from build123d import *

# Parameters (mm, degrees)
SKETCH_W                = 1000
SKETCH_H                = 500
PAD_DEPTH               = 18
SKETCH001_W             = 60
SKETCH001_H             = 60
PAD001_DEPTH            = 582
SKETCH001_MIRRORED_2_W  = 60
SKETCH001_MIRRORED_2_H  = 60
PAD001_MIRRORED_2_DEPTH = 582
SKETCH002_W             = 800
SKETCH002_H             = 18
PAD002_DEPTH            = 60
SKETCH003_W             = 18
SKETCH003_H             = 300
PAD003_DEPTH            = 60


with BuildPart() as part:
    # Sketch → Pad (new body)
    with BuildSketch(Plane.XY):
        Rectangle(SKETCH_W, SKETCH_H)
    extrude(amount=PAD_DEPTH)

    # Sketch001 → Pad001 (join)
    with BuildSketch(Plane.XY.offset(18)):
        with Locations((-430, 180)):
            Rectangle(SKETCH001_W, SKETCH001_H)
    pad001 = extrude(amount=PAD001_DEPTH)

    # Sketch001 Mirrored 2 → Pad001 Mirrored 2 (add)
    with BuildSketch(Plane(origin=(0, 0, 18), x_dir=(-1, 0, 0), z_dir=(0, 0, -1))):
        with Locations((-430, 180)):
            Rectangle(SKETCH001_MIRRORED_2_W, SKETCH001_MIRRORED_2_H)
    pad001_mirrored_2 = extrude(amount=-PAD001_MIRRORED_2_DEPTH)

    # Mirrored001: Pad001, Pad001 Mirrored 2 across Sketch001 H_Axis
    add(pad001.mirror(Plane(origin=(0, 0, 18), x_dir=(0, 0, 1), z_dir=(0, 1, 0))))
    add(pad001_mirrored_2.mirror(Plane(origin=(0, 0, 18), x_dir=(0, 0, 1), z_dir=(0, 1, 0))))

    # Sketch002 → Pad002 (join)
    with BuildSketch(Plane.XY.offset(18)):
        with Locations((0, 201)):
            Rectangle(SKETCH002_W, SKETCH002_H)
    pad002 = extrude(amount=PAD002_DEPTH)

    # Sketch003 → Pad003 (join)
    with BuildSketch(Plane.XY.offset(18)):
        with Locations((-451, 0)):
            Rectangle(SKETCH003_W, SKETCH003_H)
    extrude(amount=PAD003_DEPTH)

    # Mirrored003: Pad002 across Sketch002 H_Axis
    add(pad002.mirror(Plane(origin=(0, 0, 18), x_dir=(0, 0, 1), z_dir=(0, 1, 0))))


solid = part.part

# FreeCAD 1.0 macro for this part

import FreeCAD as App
import Part
import Sketcher

V = App.Vector

doc = App.newDocument("Part")
body = doc.addObject("PartDesign::Body", "Body")

# Sketch on XY plane
sketch1 = doc.addObject("Sketcher::SketchObject", "Sketch")
body.addObject(sketch1)
sketch1.AttachmentSupport = (doc.XY_Plane, [""])
sketch1.MapMode = "FlatFace"
sketch1.addGeometry([
    Part.LineSegment(V(-500, 250, 0), V(-500, -250, 0)),
    Part.LineSegment(V(-500, -250, 0), V(500, -250, 0)),
    Part.LineSegment(V(500, -250, 0), V(500, 250, 0)),
    Part.LineSegment(V(500, 250, 0), V(-500, 250, 0)),
], False)
sketch1.addConstraint([
    Sketcher.Constraint("Coincident", 0, 2, 1, 1),
    Sketcher.Constraint("Coincident", 1, 2, 2, 1),
    Sketcher.Constraint("Coincident", 2, 2, 3, 1),
    Sketcher.Constraint("Coincident", 3, 2, 0, 1),
    Sketcher.Constraint("Vertical", 0),
    Sketcher.Constraint("Horizontal", 1),
    Sketcher.Constraint("Vertical", 2),
    Sketcher.Constraint("Horizontal", 3),
    Sketcher.Constraint("Symmetric", 0, 2, 2, 2, -1, 1),
    Sketcher.Constraint("DistanceX", 1, 1, 1, 2, 1000.0),
    Sketcher.Constraint("DistanceY", 0, 2, 0, 1, 500.0),
])
pad1 = doc.addObject("PartDesign::Pad", "Pad")
body.addObject(pad1)
pad1.Profile = sketch1
pad1.Length = 18

# Sketch on XY plane
sketch2 = doc.addObject("Sketcher::SketchObject", "Sketch001")
body.addObject(sketch2)
sketch2.AttachmentSupport = (doc.XY_Plane, [""])
sketch2.MapMode = "FlatFace"
sketch2.AttachmentOffset = App.Placement(V(0, 0, 18), App.Rotation())
sketch2.addGeometry([
    Part.LineSegment(V(-460, 210, 0), V(-460, 150, 0)),
    Part.LineSegment(V(-460, 150, 0), V(-400, 150, 0)),
    Part.LineSegment(V(-400, 150, 0), V(-400, 210, 0)),
    Part.LineSegment(V(-400, 210, 0), V(-460, 210, 0)),
], False)
sketch2.addConstraint([
    Sketcher.Constraint("Coincident", 0, 2, 1, 1),
    Sketcher.Constraint("Coincident", 1, 2, 2, 1),
    Sketcher.Constraint("Coincident", 2, 2, 3, 1),
    Sketcher.Constraint("Coincident", 3, 2, 0, 1),
    Sketcher.Constraint("Vertical", 0),
    Sketcher.Constraint("Horizontal", 1),
    Sketcher.Constraint("Vertical", 2),
    Sketcher.Constraint("Horizontal", 3),
    Sketcher.Constraint("Equal", 3, 0),
    Sketcher.Constraint("DistanceX", 1, 1, 1, 2, 60.0),
    Sketcher.Constraint("DistanceX", 0, 2, -1, 1, 460.0),
    Sketcher.Constraint("DistanceY", -1, 1, 0, 2, 150.0),
])
pad2 = doc.addObject("PartDesign::Pad", "Pad001")
body.addObject(pad2)
pad2.Profile = sketch2
pad2.Length = 582

# Sketch on XY plane
sketch3 = doc.addObject("Sketcher::SketchObject", "Sketch002")
body.addObject(sketch3)
sketch3.AttachmentSupport = (doc.XY_Plane, [""])
sketch3.MapMode = "FlatFace"
sketch3.AttachmentOffset = App.Placement(V(0, 0, 18), App.Rotation())
sketch3.addGeometry([
    Part.LineSegment(V(460, 210, 0), V(460, 150, 0)),
    Part.LineSegment(V(460, 150, 0), V(400, 150, 0)),
    Part.LineSegment(V(400, 150, 0), V(400, 210, 0)),
    Part.LineSegment(V(400, 210, 0), V(460, 210, 0)),
], False)
sketch3.addConstraint([
    Sketcher.Constraint("Coincident", 0, 2, 1, 1),
    Sketcher.Constraint("Coincident", 1, 2, 2, 1),
    Sketcher.Constraint("Coincident", 2, 2, 3, 1),
    Sketcher.Constraint("Coincident", 3, 2, 0, 1),
    Sketcher.Constraint("Vertical", 0),
    Sketcher.Constraint("Horizontal", 1),
    Sketcher.Constraint("Vertical", 2),
    Sketcher.Constraint("Horizontal", 3),
    Sketcher.Constraint("Equal", 3, 0),
    Sketcher.Constraint("DistanceX", 1, 2, 1, 1, 60.0),
    Sketcher.Constraint("DistanceX", -1, 1, 0, 2, 460.0),
    Sketcher.Constraint("DistanceY", -1, 1, 0, 2, 150.0),
])
pad3 = doc.addObject("PartDesign::Pad", "Pad002")
body.addObject(pad3)
pad3.Profile = sketch3
pad3.Length = 582
doc.recompute()

mirrored = doc.addObject("PartDesign::Mirrored", "Mirrored")
body.addObject(mirrored)
mirrored.Originals = [pad2, pad3]
mirrored.MirrorPlane = (doc.XZ_Plane, [""])
body.Tip = mirrored

# Sketch on XY plane
sketch4 = doc.addObject("Sketcher::SketchObject", "Sketch003")
body.addObject(sketch4)
sketch4.AttachmentSupport = (doc.XY_Plane, [""])
sketch4.MapMode = "FlatFace"
sketch4.AttachmentOffset = App.Placement(V(0, 0, 18), App.Rotation())
sketch4.addGeometry([
    Part.LineSegment(V(-400, 210, 0), V(-400, 192, 0)),
    Part.LineSegment(V(-400, 192, 0), V(400, 192, 0)),
    Part.LineSegment(V(400, 192, 0), V(400, 210, 0)),
    Part.LineSegment(V(400, 210, 0), V(-400, 210, 0)),
], False)
sketch4.addConstraint([
    Sketcher.Constraint("Coincident", 0, 2, 1, 1),
    Sketcher.Constraint("Coincident", 1, 2, 2, 1),
    Sketcher.Constraint("Coincident", 2, 2, 3, 1),
    Sketcher.Constraint("Coincident", 3, 2, 0, 1),
    Sketcher.Constraint("Vertical", 0),
    Sketcher.Constraint("Horizontal", 1),
    Sketcher.Constraint("Vertical", 2),
    Sketcher.Constraint("Horizontal", 3),
    Sketcher.Constraint("DistanceX", 1, 1, 1, 2, 800.0),
    Sketcher.Constraint("DistanceY", 0, 2, 0, 1, 18.0),
    Sketcher.Constraint("DistanceX", 0, 2, -1, 1, 400.0),
    Sketcher.Constraint("DistanceY", -1, 1, 0, 2, 192.0),
])
pad4 = doc.addObject("PartDesign::Pad", "Pad003")
body.addObject(pad4)
pad4.Profile = sketch4
pad4.Length = 60

# Sketch on XY plane
sketch5 = doc.addObject("Sketcher::SketchObject", "Sketch004")
body.addObject(sketch5)
sketch5.AttachmentSupport = (doc.XY_Plane, [""])
sketch5.MapMode = "FlatFace"
sketch5.AttachmentOffset = App.Placement(V(0, 0, 18), App.Rotation())
sketch5.addGeometry([
    Part.LineSegment(V(-460, 150, 0), V(-460, -150, 0)),
    Part.LineSegment(V(-460, -150, 0), V(-442, -150, 0)),
    Part.LineSegment(V(-442, -150, 0), V(-442, 150, 0)),
    Part.LineSegment(V(-442, 150, 0), V(-460, 150, 0)),
], False)
sketch5.addConstraint([
    Sketcher.Constraint("Coincident", 0, 2, 1, 1),
    Sketcher.Constraint("Coincident", 1, 2, 2, 1),
    Sketcher.Constraint("Coincident", 2, 2, 3, 1),
    Sketcher.Constraint("Coincident", 3, 2, 0, 1),
    Sketcher.Constraint("Vertical", 0),
    Sketcher.Constraint("Horizontal", 1),
    Sketcher.Constraint("Vertical", 2),
    Sketcher.Constraint("Horizontal", 3),
    Sketcher.Constraint("DistanceX", 1, 1, 1, 2, 18.0),
    Sketcher.Constraint("DistanceY", 0, 2, 0, 1, 300.0),
    Sketcher.Constraint("DistanceX", 0, 2, -1, 1, 460.0),
    Sketcher.Constraint("DistanceY", 0, 2, -1, 1, 150.0),
])
pad5 = doc.addObject("PartDesign::Pad", "Pad004")
body.addObject(pad5)
pad5.Profile = sketch5
pad5.Length = 60
doc.recompute()

mirrored2 = doc.addObject("PartDesign::Mirrored", "Mirrored001")
body.addObject(mirrored2)
mirrored2.Originals = [pad4]
mirrored2.MirrorPlane = (doc.XZ_Plane, [""])
body.Tip = mirrored2

doc.recompute()
